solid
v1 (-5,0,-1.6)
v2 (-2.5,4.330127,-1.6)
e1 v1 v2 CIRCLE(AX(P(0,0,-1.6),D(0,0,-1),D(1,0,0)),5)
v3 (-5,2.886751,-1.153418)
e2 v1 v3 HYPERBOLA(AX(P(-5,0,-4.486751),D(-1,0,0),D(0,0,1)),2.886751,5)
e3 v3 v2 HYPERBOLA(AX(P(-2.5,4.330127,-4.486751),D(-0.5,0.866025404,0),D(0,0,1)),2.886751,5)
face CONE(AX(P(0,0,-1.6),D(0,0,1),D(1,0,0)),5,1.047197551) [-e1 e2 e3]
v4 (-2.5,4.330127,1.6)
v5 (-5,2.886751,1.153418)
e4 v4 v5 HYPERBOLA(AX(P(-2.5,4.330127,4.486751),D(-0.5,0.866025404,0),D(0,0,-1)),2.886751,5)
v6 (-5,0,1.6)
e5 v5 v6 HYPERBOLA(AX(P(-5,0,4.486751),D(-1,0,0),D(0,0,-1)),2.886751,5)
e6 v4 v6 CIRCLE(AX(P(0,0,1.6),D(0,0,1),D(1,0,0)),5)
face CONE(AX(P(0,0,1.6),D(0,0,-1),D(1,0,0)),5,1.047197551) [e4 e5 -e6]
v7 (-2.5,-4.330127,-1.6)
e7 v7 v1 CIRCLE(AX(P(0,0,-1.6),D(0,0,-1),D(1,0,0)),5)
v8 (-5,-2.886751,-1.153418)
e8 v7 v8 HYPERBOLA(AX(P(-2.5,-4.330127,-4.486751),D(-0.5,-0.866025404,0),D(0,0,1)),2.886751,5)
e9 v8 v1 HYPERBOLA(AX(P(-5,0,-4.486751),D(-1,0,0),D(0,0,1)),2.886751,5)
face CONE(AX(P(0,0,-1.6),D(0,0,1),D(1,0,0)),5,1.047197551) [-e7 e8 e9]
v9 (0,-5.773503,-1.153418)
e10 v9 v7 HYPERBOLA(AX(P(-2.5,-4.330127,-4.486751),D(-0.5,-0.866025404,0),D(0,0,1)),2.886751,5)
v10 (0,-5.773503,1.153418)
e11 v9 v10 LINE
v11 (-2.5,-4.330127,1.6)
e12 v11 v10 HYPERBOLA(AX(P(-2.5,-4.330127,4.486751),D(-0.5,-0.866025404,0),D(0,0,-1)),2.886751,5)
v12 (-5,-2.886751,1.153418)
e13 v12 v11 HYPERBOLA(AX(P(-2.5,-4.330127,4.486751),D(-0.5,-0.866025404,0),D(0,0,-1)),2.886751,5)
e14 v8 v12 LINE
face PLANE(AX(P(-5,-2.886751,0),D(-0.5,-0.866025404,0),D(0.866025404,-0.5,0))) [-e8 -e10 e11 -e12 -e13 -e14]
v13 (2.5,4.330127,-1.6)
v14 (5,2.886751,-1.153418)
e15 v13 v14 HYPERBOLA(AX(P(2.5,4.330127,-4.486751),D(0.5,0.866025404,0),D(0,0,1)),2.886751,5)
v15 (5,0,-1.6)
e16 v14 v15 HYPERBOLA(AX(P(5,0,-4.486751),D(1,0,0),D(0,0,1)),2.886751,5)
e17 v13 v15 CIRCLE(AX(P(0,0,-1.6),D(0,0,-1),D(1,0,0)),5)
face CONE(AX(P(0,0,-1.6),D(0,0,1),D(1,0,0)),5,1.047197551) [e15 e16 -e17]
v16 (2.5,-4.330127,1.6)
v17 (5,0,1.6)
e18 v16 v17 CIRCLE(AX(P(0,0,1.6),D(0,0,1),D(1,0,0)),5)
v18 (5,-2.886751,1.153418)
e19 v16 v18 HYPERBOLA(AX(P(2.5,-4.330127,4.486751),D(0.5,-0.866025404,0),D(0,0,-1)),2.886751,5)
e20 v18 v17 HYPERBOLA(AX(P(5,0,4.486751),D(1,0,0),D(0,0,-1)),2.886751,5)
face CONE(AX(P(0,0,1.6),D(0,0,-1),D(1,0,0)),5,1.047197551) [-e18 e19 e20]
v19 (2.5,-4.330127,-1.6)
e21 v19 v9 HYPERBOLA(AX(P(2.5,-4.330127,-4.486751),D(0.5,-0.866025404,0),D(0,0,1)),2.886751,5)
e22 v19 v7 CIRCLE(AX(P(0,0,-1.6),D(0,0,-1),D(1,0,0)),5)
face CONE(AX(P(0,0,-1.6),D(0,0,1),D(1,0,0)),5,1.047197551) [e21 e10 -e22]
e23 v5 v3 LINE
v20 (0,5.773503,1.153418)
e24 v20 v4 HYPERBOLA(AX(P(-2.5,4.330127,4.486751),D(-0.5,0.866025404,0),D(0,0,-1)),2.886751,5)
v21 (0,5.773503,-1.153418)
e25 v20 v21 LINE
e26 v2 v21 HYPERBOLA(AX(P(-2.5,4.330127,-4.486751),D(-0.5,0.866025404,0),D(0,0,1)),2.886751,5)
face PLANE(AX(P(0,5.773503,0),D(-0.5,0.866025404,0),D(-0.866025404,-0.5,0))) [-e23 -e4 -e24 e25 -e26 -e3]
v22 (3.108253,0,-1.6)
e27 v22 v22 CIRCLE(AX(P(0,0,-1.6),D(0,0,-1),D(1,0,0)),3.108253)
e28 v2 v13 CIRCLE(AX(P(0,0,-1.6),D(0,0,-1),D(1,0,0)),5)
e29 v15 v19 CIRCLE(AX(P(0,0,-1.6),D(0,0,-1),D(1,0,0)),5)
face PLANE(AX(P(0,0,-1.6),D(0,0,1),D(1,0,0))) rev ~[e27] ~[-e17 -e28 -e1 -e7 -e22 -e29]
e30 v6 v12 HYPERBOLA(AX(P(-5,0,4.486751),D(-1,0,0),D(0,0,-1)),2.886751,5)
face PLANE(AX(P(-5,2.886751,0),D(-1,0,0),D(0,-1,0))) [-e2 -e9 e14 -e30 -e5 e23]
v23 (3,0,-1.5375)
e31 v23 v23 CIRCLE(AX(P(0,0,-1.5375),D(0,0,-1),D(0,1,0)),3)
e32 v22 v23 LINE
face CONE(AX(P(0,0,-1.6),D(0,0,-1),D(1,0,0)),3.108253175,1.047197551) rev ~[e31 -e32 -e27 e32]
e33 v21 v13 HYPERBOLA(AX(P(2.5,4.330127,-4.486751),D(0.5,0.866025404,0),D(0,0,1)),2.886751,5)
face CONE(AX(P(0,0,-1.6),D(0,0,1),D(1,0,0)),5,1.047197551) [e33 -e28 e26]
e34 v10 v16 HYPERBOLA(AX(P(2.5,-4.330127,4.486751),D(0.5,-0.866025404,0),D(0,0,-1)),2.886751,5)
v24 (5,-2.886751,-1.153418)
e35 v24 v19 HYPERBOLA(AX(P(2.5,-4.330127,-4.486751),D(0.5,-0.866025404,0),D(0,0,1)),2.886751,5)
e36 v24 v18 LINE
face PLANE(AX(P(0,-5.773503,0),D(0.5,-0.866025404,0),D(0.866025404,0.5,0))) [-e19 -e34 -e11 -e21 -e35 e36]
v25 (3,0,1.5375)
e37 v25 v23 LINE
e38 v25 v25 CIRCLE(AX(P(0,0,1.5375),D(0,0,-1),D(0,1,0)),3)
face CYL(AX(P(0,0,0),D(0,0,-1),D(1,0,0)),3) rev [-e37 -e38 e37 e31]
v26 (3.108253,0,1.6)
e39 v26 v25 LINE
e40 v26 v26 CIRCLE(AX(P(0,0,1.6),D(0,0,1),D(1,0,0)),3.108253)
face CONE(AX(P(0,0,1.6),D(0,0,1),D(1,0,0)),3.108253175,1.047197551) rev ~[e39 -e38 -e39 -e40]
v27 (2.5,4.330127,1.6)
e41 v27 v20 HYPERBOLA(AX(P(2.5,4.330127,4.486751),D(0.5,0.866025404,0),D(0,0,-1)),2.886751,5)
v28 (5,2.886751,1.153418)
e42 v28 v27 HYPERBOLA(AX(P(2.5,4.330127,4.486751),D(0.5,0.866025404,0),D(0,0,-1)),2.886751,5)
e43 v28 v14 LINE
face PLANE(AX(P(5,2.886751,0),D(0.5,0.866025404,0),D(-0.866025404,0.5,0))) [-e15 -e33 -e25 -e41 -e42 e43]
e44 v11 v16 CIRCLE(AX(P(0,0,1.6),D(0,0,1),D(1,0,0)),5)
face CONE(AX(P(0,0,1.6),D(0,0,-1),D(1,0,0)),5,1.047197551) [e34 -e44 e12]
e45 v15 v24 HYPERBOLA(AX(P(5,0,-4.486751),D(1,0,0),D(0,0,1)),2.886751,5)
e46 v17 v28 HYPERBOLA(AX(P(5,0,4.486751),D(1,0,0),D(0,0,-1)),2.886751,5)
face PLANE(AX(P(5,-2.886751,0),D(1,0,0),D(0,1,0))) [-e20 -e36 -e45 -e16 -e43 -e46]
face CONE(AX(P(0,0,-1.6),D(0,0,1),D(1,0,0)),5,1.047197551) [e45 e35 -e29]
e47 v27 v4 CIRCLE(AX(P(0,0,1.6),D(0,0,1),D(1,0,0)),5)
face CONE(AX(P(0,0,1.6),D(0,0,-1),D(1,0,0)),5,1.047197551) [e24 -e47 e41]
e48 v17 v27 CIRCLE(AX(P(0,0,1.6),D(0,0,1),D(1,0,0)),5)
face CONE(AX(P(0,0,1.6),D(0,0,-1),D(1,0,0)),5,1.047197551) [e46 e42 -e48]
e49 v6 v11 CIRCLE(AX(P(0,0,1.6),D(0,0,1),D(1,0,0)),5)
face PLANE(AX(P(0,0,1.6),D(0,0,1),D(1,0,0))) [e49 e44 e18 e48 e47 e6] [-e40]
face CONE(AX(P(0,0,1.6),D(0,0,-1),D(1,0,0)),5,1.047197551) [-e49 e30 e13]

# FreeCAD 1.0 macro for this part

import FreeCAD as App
import Part
import Sketcher

V = App.Vector
Q = App.Units.Quantity


def faces_at(feature, points):
    """Names of the faces that lie closest to the given points."""
    faces = feature.Shape.Faces
    near = lambda p: min(range(len(faces)), key=lambda i: faces[i].distToShape(Part.Vertex(*p))[0])
    return sorted({f"Face{near(p) + 1}" for p in points})

doc = App.newDocument("Part")
params = doc.addObject("Spreadsheet::Sheet", "Params")
for row, (alias, value) in enumerate([
    ("sketch1_diameter", "6 mm"),
    ("pad1_length", "3.2 mm"),
    ("sketch2_diameter", "10 mm"),
    ("sketch2_height", "51.31 mm"),
    ("pad2_length", "10 mm"),
    ("draft_angle", "60 deg"),
    ("pad3_length", "10 mm"),
    ("draft2_angle", "60 deg"),
    ("sketch4_diameter", "10 mm"),
    ("sketch4_height", "51.31 mm"),
    ("pad4_length", "10 mm"),
    ("draft3_angle", "60 deg"),
    ("pad5_length", "10 mm"),
    ("draft4_angle", "60 deg"),
    ("pad6_length", "10 mm"),
    ("draft5_angle", "60 deg"),
], start=1):
    params.set(f"A{row}", alias)
    params.set(f"B{row}", "=" + value)
    params.setAlias(f"B{row}", alias)

body = doc.addObject("PartDesign::Body", "Body")

# Sketch on XY plane
sketch1 = body.newObject("Sketcher::SketchObject", "Sketch")
sketch1.AttachmentSupport = (doc.getObject("XY_Plane"), [""])
sketch1.MapMode = "FlatFace"
sketch1.addGeometry(Part.LineSegment(V(-5, 2.886751, 0), V(-5, -2.886751, 0)), False)
sketch1.addGeometry(Part.LineSegment(V(-5, -2.886751, 0), V(0, -5.773503, 0)), False)
sketch1.addGeometry(Part.LineSegment(V(0, -5.773503, 0), V(5, -2.886751, 0)), False)
sketch1.addGeometry(Part.LineSegment(V(5, -2.886751, 0), V(5, 2.886751, 0)), False)
sketch1.addGeometry(Part.LineSegment(V(5, 2.886751, 0), V(0, 5.773503, 0)), False)
sketch1.addGeometry(Part.LineSegment(V(0, 5.773503, 0), V(-5, 2.886751, 0)), False)
sketch1.addGeometry(Part.Circle(V(0, 0, 0), V(0, 0, 1), 3), False)
sketch1.addConstraint(Sketcher.Constraint("Coincident", 0, 2, 1, 1))
sketch1.addConstraint(Sketcher.Constraint("Coincident", 1, 2, 2, 1))
sketch1.addConstraint(Sketcher.Constraint("Coincident", 2, 2, 3, 1))
sketch1.addConstraint(Sketcher.Constraint("Coincident", 3, 2, 4, 1))
sketch1.addConstraint(Sketcher.Constraint("Coincident", 4, 2, 5, 1))
sketch1.addConstraint(Sketcher.Constraint("Coincident", 5, 2, 0, 1))
sketch1.addConstraint(Sketcher.Constraint("Vertical", 0))
sketch1.addConstraint(Sketcher.Constraint("Vertical", 3))
sketch1.addConstraint(Sketcher.Constraint("Coincident", 6, 3, -1, 1))
sketch1.addConstraint(Sketcher.Constraint("Symmetric", 0, 2, 3, 2, -1, 1))
sketch1.addConstraint(Sketcher.Constraint("Symmetric", 1, 2, 4, 2, -1, 1))
sketch1.addConstraint(Sketcher.Constraint("PointOnObject", 1, 2, -2))
sketch1.addConstraint(Sketcher.Constraint("Parallel", 2, 5))
sketch1.addConstraint(Sketcher.Constraint("Horizontal", 0, 2, 2, 2))
sketch1.addConstraint(Sketcher.Constraint("Diameter", 6, Q("6 mm")))
sketch1.addConstraint(Sketcher.Constraint("Angle", 1, Q("-30 deg")))
sketch1.addConstraint(Sketcher.Constraint("DistanceX", 0, 2, -1, 1, Q("5 mm")))
sketch1.addConstraint(Sketcher.Constraint("DistanceY", 0, 2, 0, 1, Q("5.773503 mm")))
sketch1.setExpression("Constraints[14]", "Params.sketch1_diameter")
pad1 = body.newObject("PartDesign::Pad", "Pad")
pad1.Profile = sketch1
pad1.setExpression("Length", "Params.pad1_length")
pad1.Midplane = True
body2 = doc.addObject("PartDesign::Body", "Body001")

# Sketch on XY plane
sketch2 = body2.newObject("Sketcher::SketchObject", "Sketch001")
sketch2.AttachmentSupport = (doc.getObject("XY_Plane001"), [""])
sketch2.MapMode = "FlatFace"
sketch2.AttachmentOffset = App.Placement(V(0, 0, 1.6), App.Rotation())
sketch2.addGeometry(Part.LineSegment(V(-24.881, 25.655, 0), V(-24.881, -25.655, 0)), False)
sketch2.addGeometry(Part.LineSegment(V(-24.881, -25.655, 0), V(24.881, -25.655, 0)), False)
sketch2.addGeometry(Part.LineSegment(V(24.881, -25.655, 0), V(24.881, 25.655, 0)), False)
sketch2.addGeometry(Part.LineSegment(V(24.881, 25.655, 0), V(-24.881, 25.655, 0)), False)
sketch2.addGeometry(Part.Circle(V(0, 0, 0), V(0, 0, 1), 5), False)
sketch2.addConstraint(Sketcher.Constraint("Coincident", 0, 2, 1, 1))
sketch2.addConstraint(Sketcher.Constraint("Coincident", 1, 2, 2, 1))
sketch2.addConstraint(Sketcher.Constraint("Coincident", 2, 2, 3, 1))
sketch2.addConstraint(Sketcher.Constraint("Coincident", 3, 2, 0, 1))
sketch2.addConstraint(Sketcher.Constraint("Vertical", 0))
sketch2.addConstraint(Sketcher.Constraint("Horizontal", 1))
sketch2.addConstraint(Sketcher.Constraint("Vertical", 2))
sketch2.addConstraint(Sketcher.Constraint("Horizontal", 3))
sketch2.addConstraint(Sketcher.Constraint("Coincident", 4, 3, -1, 1))
sketch2.addConstraint(Sketcher.Constraint("Symmetric", 0, 2, 2, 2, -1, 1))
sketch2.addConstraint(Sketcher.Constraint("Diameter", 4, Q("10 mm")))
sketch2.addConstraint(Sketcher.Constraint("DistanceY", 0, 2, 0, 1, Q("51.31 mm")))
sketch2.addConstraint(Sketcher.Constraint("DistanceX", 1, 1, 1, 2, Q("49.762 mm")))
sketch2.setExpression("Constraints[10]", "Params.sketch2_diameter")
sketch2.setExpression("Constraints[11]", "Params.sketch2_height")
pad2 = body2.newObject("PartDesign::Pad", "Pad001")
pad2.Profile = sketch2
pad2.setExpression("Length", "Params.pad2_length")
pad2.Reversed = True
doc.recompute()

datumplane = body2.newObject("PartDesign::Plane", "DatumPlane")
datumplane.AttachmentSupport = (doc.getObject("XY_Plane001"), [""])
datumplane.MapMode = "FlatFace"
datumplane.AttachmentOffset = App.Placement(V(0, 0, 1.6), App.Rotation())
draft = body2.newObject("PartDesign::Draft", "Draft")
draft.Base = (pad2, faces_at(pad2, [
    (0, -25.655, -3.4),
    (24.881, 0, -3.4),
    (0, 25.655, -3.4),
    (-24.881, 0, -3.4),
    (-5, 0, -3.4),
]))
draft.NeutralPlane = (datumplane, [""])
draft.setExpression("Angle", "Params.draft_angle")
draft.Reversed = True
doc.recompute()

boolean = body.newObject("PartDesign::Boolean", "Boolean")
boolean.Type = "Cut"
boolean.addObjects([body2])
body3 = doc.addObject("PartDesign::Body", "Body002")

# Sketch on XY plane
sketch3 = body3.newObject("Sketcher::SketchObject", "Sketch002")
sketch3.AttachmentSupport = (doc.getObject("XY_Plane002"), [""])
sketch3.MapMode = "FlatFace"
sketch3.AttachmentOffset = App.Placement(V(0, 0, 1.6), App.Rotation())
sketch3.addGeometry(Part.Circle(V(0, 0, 0), V(0, 0, 1), 3.108253), False)
sketch3.addConstraint(Sketcher.Constraint("Coincident", 0, 3, -1, 1))
sketch3.addConstraint(Sketcher.Constraint("Diameter", 0, Q("6.216506 mm")))
pad3 = body3.newObject("PartDesign::Pad", "Pad002")
pad3.Profile = sketch3
pad3.setExpression("Length", "Params.pad3_length")
pad3.Reversed = True
doc.recompute()

datumplane2 = body3.newObject("PartDesign::Plane", "DatumPlane001")
datumplane2.AttachmentSupport = (doc.getObject("XY_Plane002"), [""])
datumplane2.MapMode = "FlatFace"
datumplane2.AttachmentOffset = App.Placement(V(0, 0, 1.6), App.Rotation())
draft2 = body3.newObject("PartDesign::Draft", "Draft001")
draft2.Base = (pad3, faces_at(pad3, [(-3.108, 0, -3.4)]))
draft2.NeutralPlane = (datumplane2, [""])
draft2.setExpression("Angle", "Params.draft2_angle")
draft2.Reversed = True
doc.recompute()

boolean2 = body.newObject("PartDesign::Boolean", "Boolean001")
boolean2.Type = "Cut"
boolean2.addObjects([body3])
body4 = doc.addObject("PartDesign::Body", "Body003")

# Sketch on XY plane
sketch4 = body4.newObject("Sketcher::SketchObject", "Sketch003")
sketch4.AttachmentSupport = (doc.getObject("XY_Plane003"), [""])
sketch4.MapMode = "FlatFace"
sketch4.AttachmentOffset = App.Placement(V(0, 0, -1.6), App.Rotation())
sketch4.addGeometry(Part.LineSegment(V(-24.881, -25.655, 0), V(-24.881, 25.655, 0)), False)
sketch4.addGeometry(Part.LineSegment(V(-24.881, 25.655, 0), V(24.881, 25.655, 0)), False)
sketch4.addGeometry(Part.LineSegment(V(24.881, 25.655, 0), V(24.881, -25.655, 0)), False)
sketch4.addGeometry(Part.LineSegment(V(24.881, -25.655, 0), V(-24.881, -25.655, 0)), False)
sketch4.addGeometry(Part.Circle(V(0, 0, 0), V(0, 0, 1), 5), False)
sketch4.addConstraint(Sketcher.Constraint("Coincident", 0, 2, 1, 1))
sketch4.addConstraint(Sketcher.Constraint("Coincident", 1, 2, 2, 1))
sketch4.addConstraint(Sketcher.Constraint("Coincident", 2, 2, 3, 1))
sketch4.addConstraint(Sketcher.Constraint("Coincident", 3, 2, 0, 1))
sketch4.addConstraint(Sketcher.Constraint("Vertical", 0))
sketch4.addConstraint(Sketcher.Constraint("Horizontal", 1))
sketch4.addConstraint(Sketcher.Constraint("Vertical", 2))
sketch4.addConstraint(Sketcher.Constraint("Horizontal", 3))
sketch4.addConstraint(Sketcher.Constraint("Coincident", 4, 3, -1, 1))
sketch4.addConstraint(Sketcher.Constraint("Symmetric", 0, 2, 2, 2, -1, 1))
sketch4.addConstraint(Sketcher.Constraint("Diameter", 4, Q("10 mm")))
sketch4.addConstraint(Sketcher.Constraint("DistanceY", 0, 1, 0, 2, Q("51.31 mm")))
sketch4.addConstraint(Sketcher.Constraint("DistanceX", 1, 1, 1, 2, Q("49.762 mm")))
sketch4.setExpression("Constraints[10]", "Params.sketch4_diameter")
sketch4.setExpression("Constraints[11]", "Params.sketch4_height")
pad4 = body4.newObject("PartDesign::Pad", "Pad003")
pad4.Profile = sketch4
pad4.setExpression("Length", "Params.pad4_length")
doc.recompute()

datumplane3 = body4.newObject("PartDesign::Plane", "DatumPlane002")
datumplane3.AttachmentSupport = (doc.getObject("XY_Plane003"), [""])
datumplane3.MapMode = "FlatFace"
datumplane3.AttachmentOffset = App.Placement(V(0, 0, -1.6), App.Rotation())
draft3 = body4.newObject("PartDesign::Draft", "Draft002")
draft3.Base = (pad4, faces_at(pad4, [
    (0, -25.655, 3.4),
    (24.881, 0, 3.4),
    (0, 25.655, 3.4),
    (-24.881, 0, 3.4),
    (-5, 0, 3.4),
]))
draft3.NeutralPlane = (datumplane3, [""])
draft3.setExpression("Angle", "Params.draft3_angle")
draft3.Reversed = False
doc.recompute()

boolean3 = body.newObject("PartDesign::Boolean", "Boolean002")
boolean3.Type = "Cut"
boolean3.addObjects([body4])
body5 = doc.addObject("PartDesign::Body", "Body004")

# Sketch on XY plane
sketch5 = body5.newObject("Sketcher::SketchObject", "Sketch004")
sketch5.AttachmentSupport = (doc.getObject("XY_Plane004"), [""])
sketch5.MapMode = "FlatFace"
sketch5.AttachmentOffset = App.Placement(V(0, 0, -1.6), App.Rotation())
sketch5.addGeometry(Part.Circle(V(0, 0, 0), V(0, 0, 1), 3.108253), False)
sketch5.addConstraint(Sketcher.Constraint("Coincident", 0, 3, -1, 1))
sketch5.addConstraint(Sketcher.Constraint("Diameter", 0, Q("6.216506 mm")))
pad5 = body5.newObject("PartDesign::Pad", "Pad004")
pad5.Profile = sketch5
pad5.setExpression("Length", "Params.pad5_length")
doc.recompute()

datumplane4 = body5.newObject("PartDesign::Plane", "DatumPlane003")
datumplane4.AttachmentSupport = (doc.getObject("XY_Plane004"), [""])
datumplane4.MapMode = "FlatFace"
datumplane4.AttachmentOffset = App.Placement(V(0, 0, -1.6), App.Rotation())
draft4 = body5.newObject("PartDesign::Draft", "Draft003")
draft4.Base = (pad5, faces_at(pad5, [(-3.108, 0, 3.4)]))
draft4.NeutralPlane = (datumplane4, [""])
draft4.setExpression("Angle", "Params.draft4_angle")
draft4.Reversed = False
doc.recompute()

boolean4 = body.newObject("PartDesign::Boolean", "Boolean003")
boolean4.Type = "Cut"
boolean4.addObjects([body5])
body6 = doc.addObject("PartDesign::Body", "Body005")

# Sketch on XY plane
sketch6 = body6.newObject("Sketcher::SketchObject", "Sketch005")
sketch6.AttachmentSupport = (doc.getObject("XY_Plane005"), [""])
sketch6.MapMode = "FlatFace"
sketch6.AttachmentOffset = App.Placement(V(0, 0, -1.6), App.Rotation())
sketch6.addGeometry(Part.Circle(V(0, 0, 0), V(0, 0, 1), 3.108253), False)
sketch6.addConstraint(Sketcher.Constraint("Coincident", 0, 3, -1, 1))
sketch6.addConstraint(Sketcher.Constraint("Diameter", 0, Q("6.216506 mm")))
pad6 = body6.newObject("PartDesign::Pad", "Pad005")
pad6.Profile = sketch6
pad6.setExpression("Length", "Params.pad6_length")
doc.recompute()

datumplane5 = body6.newObject("PartDesign::Plane", "DatumPlane004")
datumplane5.AttachmentSupport = (doc.getObject("XY_Plane005"), [""])
datumplane5.MapMode = "FlatFace"
datumplane5.AttachmentOffset = App.Placement(V(0, 0, -1.6), App.Rotation())
draft5 = body6.newObject("PartDesign::Draft", "Draft004")
draft5.Base = (pad6, faces_at(pad6, [(-3.108, 0, 3.4)]))
draft5.NeutralPlane = (datumplane5, [""])
draft5.setExpression("Angle", "Params.draft5_angle")
draft5.Reversed = False
doc.recompute()

boolean5 = body.newObject("PartDesign::Boolean", "Boolean004")
boolean5.Type = "Cut"
boolean5.addObjects([body6])

doc.recompute()
